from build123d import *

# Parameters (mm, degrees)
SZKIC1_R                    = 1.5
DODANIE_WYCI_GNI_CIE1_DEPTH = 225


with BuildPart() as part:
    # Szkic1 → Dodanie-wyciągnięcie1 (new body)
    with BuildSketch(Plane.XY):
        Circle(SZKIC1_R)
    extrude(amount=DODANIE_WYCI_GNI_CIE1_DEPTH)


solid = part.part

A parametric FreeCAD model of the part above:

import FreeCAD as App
import Part
import Sketcher
from FreeCAD import Vector

doc = App.newDocument("Part")
params = doc.addObject("Spreadsheet::Sheet", "Params")
for row, (alias, value) in enumerate([
    ("sketch1_diameter", "3 mm"),
    ("pad1_length", "225 mm"),
], start=1):
    params.set(f"A{row}", alias)
    params.set(f"B{row}", "=" + value)
    params.setAlias(f"B{row}", alias)

body = doc.addObject("PartDesign::Body", "Body")

# Sketch on XY plane
sketch1 = body.newObject("Sketcher::SketchObject", "Sketch")
sketch1.AttachmentSupport = (doc.getObject("XY_Plane"), [""])
sketch1.MapMode = "FlatFace"
sketch1.addGeometry(Part.Circle(Vector(0, 0, 0), Vector(0, 0, 1), 1.5), False)
sketch1.addConstraint([
    Sketcher.Constraint("Coincident", 0, 3, -1, 1),
    Sketcher.Constraint("Diameter", 0, 3.0),
])
sketch1.setExpression("Constraints[1]", "Params.sketch1_diameter")
pad1 = body.newObject("PartDesign::Pad", "Pad")
pad1.Profile = sketch1
pad1.setExpression("Length", "Params.pad1_length")

doc.recompute()
